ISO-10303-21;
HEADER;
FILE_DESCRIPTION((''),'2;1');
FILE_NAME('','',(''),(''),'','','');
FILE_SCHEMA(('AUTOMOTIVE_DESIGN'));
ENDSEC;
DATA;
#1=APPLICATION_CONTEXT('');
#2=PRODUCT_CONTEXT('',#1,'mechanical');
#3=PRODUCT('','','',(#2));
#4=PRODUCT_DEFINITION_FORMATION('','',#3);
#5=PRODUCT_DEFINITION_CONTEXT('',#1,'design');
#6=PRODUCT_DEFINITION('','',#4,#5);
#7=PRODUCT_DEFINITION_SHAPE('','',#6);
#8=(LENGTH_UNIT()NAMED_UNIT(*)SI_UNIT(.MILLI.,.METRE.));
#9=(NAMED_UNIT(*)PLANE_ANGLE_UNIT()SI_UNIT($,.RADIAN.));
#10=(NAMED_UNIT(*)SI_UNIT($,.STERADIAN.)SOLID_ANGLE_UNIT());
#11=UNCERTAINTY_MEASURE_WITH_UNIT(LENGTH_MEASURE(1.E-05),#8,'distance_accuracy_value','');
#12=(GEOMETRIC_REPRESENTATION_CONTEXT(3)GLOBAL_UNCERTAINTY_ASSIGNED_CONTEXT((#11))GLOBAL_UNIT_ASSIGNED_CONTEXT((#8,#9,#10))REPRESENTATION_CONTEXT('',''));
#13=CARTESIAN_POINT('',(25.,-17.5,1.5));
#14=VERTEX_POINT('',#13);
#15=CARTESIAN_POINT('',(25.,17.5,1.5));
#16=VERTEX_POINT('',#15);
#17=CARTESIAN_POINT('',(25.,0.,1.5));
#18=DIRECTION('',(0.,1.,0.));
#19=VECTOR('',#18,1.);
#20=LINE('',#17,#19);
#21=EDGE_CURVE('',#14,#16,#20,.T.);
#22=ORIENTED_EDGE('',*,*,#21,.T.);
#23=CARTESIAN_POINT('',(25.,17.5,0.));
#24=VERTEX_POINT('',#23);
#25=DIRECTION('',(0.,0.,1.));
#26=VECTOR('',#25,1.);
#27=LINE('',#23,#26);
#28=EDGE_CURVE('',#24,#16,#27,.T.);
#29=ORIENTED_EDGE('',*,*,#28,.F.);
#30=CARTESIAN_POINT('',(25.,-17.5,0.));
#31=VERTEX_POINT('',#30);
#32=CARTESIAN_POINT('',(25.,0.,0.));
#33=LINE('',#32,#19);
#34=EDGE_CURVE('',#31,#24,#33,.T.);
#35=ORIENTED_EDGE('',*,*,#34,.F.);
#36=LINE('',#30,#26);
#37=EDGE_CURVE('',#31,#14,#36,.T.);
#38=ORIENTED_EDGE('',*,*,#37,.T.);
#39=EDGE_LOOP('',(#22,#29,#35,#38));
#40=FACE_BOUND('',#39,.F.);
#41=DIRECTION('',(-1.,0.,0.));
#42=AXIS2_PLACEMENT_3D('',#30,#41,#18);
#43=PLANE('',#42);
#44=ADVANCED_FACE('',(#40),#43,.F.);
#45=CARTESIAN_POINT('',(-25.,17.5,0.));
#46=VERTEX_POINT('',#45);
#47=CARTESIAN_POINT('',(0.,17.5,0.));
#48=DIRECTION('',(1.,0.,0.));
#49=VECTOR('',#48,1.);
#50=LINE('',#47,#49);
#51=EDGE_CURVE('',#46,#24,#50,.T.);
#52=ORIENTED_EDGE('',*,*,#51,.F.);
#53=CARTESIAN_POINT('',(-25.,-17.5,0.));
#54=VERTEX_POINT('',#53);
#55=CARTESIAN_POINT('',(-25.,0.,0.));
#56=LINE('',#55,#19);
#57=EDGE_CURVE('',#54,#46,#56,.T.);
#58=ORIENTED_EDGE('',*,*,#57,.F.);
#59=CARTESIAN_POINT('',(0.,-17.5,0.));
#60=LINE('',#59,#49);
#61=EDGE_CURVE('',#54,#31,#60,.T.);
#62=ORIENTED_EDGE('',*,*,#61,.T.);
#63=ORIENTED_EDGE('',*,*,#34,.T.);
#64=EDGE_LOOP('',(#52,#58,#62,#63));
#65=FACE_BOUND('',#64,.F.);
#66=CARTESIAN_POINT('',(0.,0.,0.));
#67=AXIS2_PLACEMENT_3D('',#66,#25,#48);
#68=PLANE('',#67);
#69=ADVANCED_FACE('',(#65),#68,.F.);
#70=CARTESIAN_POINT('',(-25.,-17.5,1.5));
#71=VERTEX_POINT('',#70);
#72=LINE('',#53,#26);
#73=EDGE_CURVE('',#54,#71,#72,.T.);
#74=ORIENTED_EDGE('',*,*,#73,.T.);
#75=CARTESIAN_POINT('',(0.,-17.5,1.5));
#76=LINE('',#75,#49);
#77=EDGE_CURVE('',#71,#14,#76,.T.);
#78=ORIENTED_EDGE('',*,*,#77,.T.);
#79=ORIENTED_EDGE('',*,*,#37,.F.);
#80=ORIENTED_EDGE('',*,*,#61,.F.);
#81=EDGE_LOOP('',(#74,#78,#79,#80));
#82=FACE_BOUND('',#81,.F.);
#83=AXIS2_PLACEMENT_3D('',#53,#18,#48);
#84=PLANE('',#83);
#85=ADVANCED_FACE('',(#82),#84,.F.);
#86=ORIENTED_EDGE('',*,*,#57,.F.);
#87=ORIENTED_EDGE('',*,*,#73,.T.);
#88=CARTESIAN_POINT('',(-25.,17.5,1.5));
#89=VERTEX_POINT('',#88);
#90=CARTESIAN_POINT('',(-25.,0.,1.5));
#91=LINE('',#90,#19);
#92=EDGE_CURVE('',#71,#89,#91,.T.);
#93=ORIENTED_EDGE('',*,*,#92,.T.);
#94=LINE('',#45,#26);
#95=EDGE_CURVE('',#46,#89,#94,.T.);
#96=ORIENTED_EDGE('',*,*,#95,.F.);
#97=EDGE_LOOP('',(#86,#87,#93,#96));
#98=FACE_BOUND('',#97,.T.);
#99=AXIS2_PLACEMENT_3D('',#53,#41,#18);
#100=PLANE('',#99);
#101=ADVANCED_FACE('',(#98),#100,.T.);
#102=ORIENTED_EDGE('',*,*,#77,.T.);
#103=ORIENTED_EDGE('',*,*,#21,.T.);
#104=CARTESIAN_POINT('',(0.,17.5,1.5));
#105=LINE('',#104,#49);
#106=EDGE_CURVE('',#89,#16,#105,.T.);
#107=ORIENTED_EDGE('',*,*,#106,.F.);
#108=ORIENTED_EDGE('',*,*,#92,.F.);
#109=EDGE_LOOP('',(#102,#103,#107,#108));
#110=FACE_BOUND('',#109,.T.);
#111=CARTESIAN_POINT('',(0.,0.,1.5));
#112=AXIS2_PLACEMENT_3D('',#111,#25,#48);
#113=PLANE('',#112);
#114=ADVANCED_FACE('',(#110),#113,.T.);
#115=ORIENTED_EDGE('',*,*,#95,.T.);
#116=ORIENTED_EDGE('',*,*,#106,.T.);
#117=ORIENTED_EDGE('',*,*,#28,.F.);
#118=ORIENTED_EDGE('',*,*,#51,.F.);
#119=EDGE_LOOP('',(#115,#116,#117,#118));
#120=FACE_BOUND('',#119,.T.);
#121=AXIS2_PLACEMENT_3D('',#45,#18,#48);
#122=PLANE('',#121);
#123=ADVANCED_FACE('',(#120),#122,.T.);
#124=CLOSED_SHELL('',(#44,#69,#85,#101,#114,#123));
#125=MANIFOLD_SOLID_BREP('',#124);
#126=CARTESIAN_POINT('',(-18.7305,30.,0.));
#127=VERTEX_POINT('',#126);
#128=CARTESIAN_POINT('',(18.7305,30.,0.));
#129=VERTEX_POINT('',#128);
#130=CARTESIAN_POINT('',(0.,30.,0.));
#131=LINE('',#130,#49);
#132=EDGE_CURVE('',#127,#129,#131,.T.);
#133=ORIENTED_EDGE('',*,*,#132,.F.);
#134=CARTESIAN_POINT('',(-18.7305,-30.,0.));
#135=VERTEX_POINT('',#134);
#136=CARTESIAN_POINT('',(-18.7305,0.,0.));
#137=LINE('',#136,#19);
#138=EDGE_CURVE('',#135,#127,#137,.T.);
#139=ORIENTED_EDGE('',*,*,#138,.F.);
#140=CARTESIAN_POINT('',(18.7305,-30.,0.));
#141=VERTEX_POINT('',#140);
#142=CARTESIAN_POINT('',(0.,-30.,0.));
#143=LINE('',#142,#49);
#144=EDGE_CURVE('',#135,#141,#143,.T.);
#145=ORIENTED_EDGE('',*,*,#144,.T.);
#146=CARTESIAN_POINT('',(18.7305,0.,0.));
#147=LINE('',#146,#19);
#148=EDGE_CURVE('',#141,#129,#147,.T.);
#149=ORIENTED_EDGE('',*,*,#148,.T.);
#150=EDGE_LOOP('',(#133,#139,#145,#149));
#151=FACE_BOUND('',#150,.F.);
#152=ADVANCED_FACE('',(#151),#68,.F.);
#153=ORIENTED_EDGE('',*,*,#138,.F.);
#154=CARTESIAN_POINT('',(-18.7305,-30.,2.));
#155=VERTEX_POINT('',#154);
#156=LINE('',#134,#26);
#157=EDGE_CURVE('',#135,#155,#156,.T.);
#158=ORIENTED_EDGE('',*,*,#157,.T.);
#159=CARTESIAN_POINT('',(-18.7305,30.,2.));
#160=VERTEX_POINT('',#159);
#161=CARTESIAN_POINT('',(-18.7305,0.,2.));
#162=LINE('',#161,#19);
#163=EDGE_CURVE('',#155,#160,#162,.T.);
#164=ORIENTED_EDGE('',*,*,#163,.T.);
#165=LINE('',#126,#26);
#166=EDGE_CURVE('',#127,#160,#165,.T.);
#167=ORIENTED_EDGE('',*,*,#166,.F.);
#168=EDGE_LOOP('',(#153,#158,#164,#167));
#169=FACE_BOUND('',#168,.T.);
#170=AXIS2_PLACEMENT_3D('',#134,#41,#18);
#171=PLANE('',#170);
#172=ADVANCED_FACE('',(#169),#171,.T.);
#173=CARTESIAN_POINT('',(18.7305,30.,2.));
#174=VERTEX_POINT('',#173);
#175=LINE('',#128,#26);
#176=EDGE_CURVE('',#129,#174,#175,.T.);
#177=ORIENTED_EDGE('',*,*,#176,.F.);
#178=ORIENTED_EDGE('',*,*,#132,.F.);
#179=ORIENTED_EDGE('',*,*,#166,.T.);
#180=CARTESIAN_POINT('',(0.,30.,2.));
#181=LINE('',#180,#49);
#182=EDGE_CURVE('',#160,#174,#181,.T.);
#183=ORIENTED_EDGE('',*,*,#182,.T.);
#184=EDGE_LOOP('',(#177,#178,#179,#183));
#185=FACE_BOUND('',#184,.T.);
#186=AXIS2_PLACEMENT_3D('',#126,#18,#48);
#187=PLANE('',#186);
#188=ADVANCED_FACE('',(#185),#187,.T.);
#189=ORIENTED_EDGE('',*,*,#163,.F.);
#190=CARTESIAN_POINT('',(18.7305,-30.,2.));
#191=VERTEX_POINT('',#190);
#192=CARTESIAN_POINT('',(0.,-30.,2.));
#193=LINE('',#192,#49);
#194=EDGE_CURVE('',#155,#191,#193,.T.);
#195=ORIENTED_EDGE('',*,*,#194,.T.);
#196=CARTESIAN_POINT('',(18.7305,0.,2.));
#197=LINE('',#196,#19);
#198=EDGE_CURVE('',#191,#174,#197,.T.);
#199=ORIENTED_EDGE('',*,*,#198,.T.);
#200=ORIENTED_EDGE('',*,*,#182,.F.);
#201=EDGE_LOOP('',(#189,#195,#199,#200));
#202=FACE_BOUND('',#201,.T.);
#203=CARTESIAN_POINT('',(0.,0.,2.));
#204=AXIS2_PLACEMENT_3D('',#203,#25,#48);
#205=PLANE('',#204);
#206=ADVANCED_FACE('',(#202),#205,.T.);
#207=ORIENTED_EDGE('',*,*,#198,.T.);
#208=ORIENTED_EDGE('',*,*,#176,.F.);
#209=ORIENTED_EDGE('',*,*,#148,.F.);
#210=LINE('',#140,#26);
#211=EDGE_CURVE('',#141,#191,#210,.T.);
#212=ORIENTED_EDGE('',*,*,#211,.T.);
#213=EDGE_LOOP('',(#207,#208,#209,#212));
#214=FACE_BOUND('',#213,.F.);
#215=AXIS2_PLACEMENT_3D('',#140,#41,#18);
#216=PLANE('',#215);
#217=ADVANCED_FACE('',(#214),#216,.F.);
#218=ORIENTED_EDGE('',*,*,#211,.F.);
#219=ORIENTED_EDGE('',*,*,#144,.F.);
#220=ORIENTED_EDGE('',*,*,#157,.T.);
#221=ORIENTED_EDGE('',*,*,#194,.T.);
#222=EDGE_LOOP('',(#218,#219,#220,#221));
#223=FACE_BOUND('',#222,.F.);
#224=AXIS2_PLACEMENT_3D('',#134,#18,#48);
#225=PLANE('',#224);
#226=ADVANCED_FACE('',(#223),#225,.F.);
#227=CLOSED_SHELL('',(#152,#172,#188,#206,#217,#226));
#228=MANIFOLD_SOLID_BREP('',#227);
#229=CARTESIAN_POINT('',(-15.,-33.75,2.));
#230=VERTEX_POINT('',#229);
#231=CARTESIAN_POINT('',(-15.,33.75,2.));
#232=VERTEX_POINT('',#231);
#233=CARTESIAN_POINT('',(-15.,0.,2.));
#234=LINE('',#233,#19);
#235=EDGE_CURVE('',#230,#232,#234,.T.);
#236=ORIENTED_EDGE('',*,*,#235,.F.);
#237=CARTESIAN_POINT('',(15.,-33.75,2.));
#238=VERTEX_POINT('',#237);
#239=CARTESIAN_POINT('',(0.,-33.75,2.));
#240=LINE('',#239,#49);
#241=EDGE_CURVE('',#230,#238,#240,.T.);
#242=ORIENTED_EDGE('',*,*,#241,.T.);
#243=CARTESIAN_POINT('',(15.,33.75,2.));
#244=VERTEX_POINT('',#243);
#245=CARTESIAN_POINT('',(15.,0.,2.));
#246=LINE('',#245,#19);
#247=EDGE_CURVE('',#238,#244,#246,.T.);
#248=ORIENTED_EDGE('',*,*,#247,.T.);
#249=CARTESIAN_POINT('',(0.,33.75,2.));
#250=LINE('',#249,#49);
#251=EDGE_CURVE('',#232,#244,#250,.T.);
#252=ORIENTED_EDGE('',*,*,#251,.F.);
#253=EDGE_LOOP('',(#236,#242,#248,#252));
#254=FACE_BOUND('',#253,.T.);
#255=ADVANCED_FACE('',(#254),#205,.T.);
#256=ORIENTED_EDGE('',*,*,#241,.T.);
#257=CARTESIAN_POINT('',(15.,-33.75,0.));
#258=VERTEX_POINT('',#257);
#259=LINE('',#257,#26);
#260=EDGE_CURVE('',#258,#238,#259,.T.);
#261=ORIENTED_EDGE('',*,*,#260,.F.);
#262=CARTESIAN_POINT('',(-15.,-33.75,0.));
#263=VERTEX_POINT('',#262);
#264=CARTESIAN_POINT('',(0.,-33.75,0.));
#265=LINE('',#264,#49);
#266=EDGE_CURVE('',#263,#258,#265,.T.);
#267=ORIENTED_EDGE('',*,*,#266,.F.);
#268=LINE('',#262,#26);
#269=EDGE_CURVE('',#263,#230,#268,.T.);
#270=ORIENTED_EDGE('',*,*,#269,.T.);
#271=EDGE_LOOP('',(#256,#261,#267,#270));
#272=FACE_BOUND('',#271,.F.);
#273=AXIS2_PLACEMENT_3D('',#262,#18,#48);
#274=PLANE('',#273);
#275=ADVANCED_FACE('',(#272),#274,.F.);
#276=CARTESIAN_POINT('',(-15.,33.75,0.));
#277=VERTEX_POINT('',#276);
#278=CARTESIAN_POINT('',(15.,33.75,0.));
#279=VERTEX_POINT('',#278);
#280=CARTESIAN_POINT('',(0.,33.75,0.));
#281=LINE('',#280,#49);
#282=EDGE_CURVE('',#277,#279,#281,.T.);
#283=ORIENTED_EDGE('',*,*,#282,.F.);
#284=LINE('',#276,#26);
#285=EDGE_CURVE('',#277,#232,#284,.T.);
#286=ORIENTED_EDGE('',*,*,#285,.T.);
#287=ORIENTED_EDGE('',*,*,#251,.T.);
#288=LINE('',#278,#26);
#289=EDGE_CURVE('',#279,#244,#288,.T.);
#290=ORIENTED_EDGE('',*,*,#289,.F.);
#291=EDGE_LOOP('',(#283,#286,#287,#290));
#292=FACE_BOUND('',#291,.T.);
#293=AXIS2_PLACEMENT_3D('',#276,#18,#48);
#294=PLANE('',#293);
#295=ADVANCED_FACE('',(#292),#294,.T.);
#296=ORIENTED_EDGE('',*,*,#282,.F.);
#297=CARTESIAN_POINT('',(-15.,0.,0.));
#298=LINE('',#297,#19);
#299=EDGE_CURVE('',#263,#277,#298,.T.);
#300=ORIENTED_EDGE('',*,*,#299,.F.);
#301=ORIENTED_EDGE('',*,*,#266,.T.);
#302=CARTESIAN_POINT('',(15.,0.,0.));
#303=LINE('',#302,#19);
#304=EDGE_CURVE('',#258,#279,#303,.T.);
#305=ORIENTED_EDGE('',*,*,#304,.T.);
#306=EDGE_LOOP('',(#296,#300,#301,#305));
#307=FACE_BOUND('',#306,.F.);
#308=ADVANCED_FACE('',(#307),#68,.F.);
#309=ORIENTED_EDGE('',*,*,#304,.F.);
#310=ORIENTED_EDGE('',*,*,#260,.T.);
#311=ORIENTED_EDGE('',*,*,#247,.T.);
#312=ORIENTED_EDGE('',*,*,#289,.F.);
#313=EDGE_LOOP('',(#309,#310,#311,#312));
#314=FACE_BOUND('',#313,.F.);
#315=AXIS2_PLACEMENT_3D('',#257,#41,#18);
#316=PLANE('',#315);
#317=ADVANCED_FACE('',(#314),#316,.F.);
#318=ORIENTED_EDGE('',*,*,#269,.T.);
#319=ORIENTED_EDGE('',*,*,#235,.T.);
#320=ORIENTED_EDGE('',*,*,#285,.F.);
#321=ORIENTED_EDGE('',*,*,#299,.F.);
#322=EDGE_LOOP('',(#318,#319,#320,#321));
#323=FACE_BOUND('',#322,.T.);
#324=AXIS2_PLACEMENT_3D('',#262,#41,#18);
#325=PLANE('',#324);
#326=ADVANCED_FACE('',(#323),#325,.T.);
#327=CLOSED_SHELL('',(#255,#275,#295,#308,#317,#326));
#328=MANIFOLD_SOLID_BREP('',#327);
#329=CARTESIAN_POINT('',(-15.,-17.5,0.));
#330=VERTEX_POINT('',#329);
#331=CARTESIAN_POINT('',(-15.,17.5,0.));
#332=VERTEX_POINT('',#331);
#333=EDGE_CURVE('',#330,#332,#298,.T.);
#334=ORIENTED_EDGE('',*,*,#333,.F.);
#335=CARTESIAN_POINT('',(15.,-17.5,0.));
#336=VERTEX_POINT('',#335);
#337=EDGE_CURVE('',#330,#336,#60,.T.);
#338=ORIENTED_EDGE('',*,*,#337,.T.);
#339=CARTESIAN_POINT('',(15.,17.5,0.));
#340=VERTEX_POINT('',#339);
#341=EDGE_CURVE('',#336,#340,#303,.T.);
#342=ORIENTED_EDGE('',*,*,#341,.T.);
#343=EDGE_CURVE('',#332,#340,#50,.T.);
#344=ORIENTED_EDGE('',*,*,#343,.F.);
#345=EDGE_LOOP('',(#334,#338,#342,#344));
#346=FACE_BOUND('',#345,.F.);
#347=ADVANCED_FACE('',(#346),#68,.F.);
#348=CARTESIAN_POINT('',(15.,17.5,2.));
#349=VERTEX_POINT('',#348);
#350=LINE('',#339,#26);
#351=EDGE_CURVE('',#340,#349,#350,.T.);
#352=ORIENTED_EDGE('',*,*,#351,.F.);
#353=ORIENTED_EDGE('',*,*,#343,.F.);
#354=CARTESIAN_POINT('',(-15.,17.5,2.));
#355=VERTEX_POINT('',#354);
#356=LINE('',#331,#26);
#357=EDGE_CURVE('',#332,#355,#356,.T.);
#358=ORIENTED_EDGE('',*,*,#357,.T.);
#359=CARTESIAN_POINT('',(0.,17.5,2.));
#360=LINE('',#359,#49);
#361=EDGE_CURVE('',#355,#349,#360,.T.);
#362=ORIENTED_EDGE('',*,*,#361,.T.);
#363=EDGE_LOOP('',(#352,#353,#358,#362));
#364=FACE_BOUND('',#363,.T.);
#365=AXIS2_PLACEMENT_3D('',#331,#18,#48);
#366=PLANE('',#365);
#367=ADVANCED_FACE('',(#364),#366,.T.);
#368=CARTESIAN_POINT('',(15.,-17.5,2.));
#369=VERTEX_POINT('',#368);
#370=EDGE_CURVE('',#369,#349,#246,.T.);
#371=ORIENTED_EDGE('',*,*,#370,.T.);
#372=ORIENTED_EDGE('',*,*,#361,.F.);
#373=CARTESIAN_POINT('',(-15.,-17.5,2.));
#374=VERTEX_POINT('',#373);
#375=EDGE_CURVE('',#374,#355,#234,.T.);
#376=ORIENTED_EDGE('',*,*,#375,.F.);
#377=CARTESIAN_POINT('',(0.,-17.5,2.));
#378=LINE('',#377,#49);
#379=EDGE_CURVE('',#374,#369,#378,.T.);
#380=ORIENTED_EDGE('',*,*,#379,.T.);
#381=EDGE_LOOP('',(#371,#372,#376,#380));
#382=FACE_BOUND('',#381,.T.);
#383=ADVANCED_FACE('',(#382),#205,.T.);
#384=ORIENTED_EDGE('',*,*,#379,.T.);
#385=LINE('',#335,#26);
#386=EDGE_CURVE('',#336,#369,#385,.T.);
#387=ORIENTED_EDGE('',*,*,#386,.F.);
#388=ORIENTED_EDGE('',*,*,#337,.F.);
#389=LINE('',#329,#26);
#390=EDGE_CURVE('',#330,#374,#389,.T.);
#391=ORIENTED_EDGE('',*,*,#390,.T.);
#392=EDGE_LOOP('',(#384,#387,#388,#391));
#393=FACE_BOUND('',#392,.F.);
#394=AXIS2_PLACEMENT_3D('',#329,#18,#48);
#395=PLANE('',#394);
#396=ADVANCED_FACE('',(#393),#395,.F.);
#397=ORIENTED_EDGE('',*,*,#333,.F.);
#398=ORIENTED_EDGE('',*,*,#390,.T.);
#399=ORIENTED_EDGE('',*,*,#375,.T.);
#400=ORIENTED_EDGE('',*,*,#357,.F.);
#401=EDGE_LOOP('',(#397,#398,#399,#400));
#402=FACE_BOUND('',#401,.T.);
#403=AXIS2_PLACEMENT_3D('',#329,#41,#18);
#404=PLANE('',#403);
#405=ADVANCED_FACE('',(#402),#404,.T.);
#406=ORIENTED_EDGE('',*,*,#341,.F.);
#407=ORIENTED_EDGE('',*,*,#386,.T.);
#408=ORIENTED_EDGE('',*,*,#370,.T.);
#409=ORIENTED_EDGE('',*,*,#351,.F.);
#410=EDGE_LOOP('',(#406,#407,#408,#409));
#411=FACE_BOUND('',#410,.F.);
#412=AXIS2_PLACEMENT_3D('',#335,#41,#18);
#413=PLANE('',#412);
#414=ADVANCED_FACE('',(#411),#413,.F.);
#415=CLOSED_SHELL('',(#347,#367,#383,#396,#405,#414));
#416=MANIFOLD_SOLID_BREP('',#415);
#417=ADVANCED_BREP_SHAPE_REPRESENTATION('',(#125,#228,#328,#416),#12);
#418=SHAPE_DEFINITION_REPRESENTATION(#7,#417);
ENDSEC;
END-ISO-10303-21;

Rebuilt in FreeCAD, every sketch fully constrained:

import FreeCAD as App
import Part
import Sketcher

V = App.Vector
Q = App.Units.Quantity


def add_polygon(sketch, points):
    """Adds a closed chain of lines whose ends are joined by coincident constraints."""
    first, n = sketch.GeometryCount, len(points)
    for a, b in zip(points, points[1:] + points[:1]):
        sketch.addGeometry(Part.LineSegment(App.Vector(*a, 0), App.Vector(*b, 0)), False)
    for i in range(n):
        sketch.addConstraint(Sketcher.Constraint("Coincident", first + i, 2, first + (i + 1) % n, 1))

doc = App.newDocument("Part")
params = doc.addObject("Spreadsheet::Sheet", "Params")
for row, (alias, value) in enumerate([
    ("sketch1_width", "30 mm"),
    ("sketch1_height", "35 mm"),
    ("pad1_length", "2 mm"),
    ("sketch2_width", "30 mm"),
    ("sketch2_height", "67.5 mm"),
    ("pad2_length", "2 mm"),
    ("sketch3_width", "50 mm"),
    ("sketch3_height", "35 mm"),
    ("pad3_length", "1.5 mm"),
    ("sketch4_height", "60 mm"),
    ("pad4_length", "2 mm"),
], start=1):
    params.set(f"A{row}", alias)
    params.set(f"B{row}", "=" + value)
    params.setAlias(f"B{row}", alias)

body = doc.addObject("PartDesign::Body", "Body")

# Sketch on XY plane
sketch1 = body.newObject("Sketcher::SketchObject", "Sketch")
sketch1.AttachmentSupport = (doc.getObject("XY_Plane"), [""])
sketch1.MapMode = "FlatFace"
add_polygon(sketch1, [(-15, 17.5), (-15, -17.5), (15, -17.5), (15, 17.5)])  # lines 0-3
sketch1.addConstraint([
    Sketcher.Constraint("Vertical", 0),
    Sketcher.Constraint("Horizontal", 1),
    Sketcher.Constraint("Vertical", 2),
    Sketcher.Constraint("Horizontal", 3),
    Sketcher.Constraint("Symmetric", 0, 2, 2, 2, -1, 1),
    Sketcher.Constraint("DistanceX", 1, 1, 1, 2, Q("30 mm")),
    Sketcher.Constraint("DistanceY", 0, 2, 0, 1, Q("35 mm")),
])
sketch1.setExpression("Constraints[9]", "Params.sketch1_width")
sketch1.setExpression("Constraints[10]", "Params.sketch1_height")
pad1 = body.newObject("PartDesign::Pad", "Pad")
pad1.Profile = sketch1
pad1.setExpression("Length", "Params.pad1_length")
body2 = doc.addObject("PartDesign::Body", "Body001")

# Sketch on XY plane
sketch2 = body2.newObject("Sketcher::SketchObject", "Sketch001")
sketch2.AttachmentSupport = (doc.getObject("XY_Plane001"), [""])
sketch2.MapMode = "FlatFace"
add_polygon(sketch2, [(-15, 33.75), (-15, -33.75), (15, -33.75), (15, 33.75)])  # lines 0-3
sketch2.addConstraint([
    Sketcher.Constraint("Vertical", 0),
    Sketcher.Constraint("Horizontal", 1),
    Sketcher.Constraint("Vertical", 2),
    Sketcher.Constraint("Horizontal", 3),
    Sketcher.Constraint("Symmetric", 0, 2, 2, 2, -1, 1),
    Sketcher.Constraint("DistanceX", 1, 1, 1, 2, Q("30 mm")),
    Sketcher.Constraint("DistanceY", 0, 2, 0, 1, Q("67.5 mm")),
])
sketch2.setExpression("Constraints[9]", "Params.sketch2_width")
sketch2.setExpression("Constraints[10]", "Params.sketch2_height")
pad2 = body2.newObject("PartDesign::Pad", "Pad001")
pad2.Profile = sketch2
pad2.setExpression("Length", "Params.pad2_length")
body3 = doc.addObject("PartDesign::Body", "Body002")

# Sketch on XY plane
sketch3 = body3.newObject("Sketcher::SketchObject", "Sketch002")
sketch3.AttachmentSupport = (doc.getObject("XY_Plane002"), [""])
sketch3.MapMode = "FlatFace"
add_polygon(sketch3, [(-25, 17.5), (-25, -17.5), (25, -17.5), (25, 17.5)])  # lines 0-3
sketch3.addConstraint([
    Sketcher.Constraint("Vertical", 0),
    Sketcher.Constraint("Horizontal", 1),
    Sketcher.Constraint("Vertical", 2),
    Sketcher.Constraint("Horizontal", 3),
    Sketcher.Constraint("Symmetric", 0, 2, 2, 2, -1, 1),
    Sketcher.Constraint("DistanceX", 1, 1, 1, 2, Q("50 mm")),
    Sketcher.Constraint("DistanceY", 0, 2, 0, 1, Q("35 mm")),
])
sketch3.setExpression("Constraints[9]", "Params.sketch3_width")
sketch3.setExpression("Constraints[10]", "Params.sketch3_height")
pad3 = body3.newObject("PartDesign::Pad", "Pad002")
pad3.Profile = sketch3
pad3.setExpression("Length", "Params.pad3_length")
body4 = doc.addObject("PartDesign::Body", "Body003")

# Sketch on XY plane
sketch4 = body4.newObject("Sketcher::SketchObject", "Sketch003")
sketch4.AttachmentSupport = (doc.getObject("XY_Plane003"), [""])
sketch4.MapMode = "FlatFace"
add_polygon(sketch4, [(-18.7305, 30), (-18.7305, -30), (18.7305, -30), (18.7305, 30)])  # lines 0-3
sketch4.addConstraint([
    Sketcher.Constraint("Vertical", 0),
    Sketcher.Constraint("Horizontal", 1),
    Sketcher.Constraint("Vertical", 2),
    Sketcher.Constraint("Horizontal", 3),
    Sketcher.Constraint("Symmetric", 0, 2, 2, 2, -1, 1),
    Sketcher.Constraint("DistanceY", 0, 2, 0, 1, Q("60 mm")),
    Sketcher.Constraint("DistanceX", 1, 1, 1, 2, Q("37.461 mm")),
])
sketch4.setExpression("Constraints[9]", "Params.sketch4_height")
pad4 = body4.newObject("PartDesign::Pad", "Pad003")
pad4.Profile = sketch4
pad4.setExpression("Length", "Params.pad4_length")

doc.recompute()
